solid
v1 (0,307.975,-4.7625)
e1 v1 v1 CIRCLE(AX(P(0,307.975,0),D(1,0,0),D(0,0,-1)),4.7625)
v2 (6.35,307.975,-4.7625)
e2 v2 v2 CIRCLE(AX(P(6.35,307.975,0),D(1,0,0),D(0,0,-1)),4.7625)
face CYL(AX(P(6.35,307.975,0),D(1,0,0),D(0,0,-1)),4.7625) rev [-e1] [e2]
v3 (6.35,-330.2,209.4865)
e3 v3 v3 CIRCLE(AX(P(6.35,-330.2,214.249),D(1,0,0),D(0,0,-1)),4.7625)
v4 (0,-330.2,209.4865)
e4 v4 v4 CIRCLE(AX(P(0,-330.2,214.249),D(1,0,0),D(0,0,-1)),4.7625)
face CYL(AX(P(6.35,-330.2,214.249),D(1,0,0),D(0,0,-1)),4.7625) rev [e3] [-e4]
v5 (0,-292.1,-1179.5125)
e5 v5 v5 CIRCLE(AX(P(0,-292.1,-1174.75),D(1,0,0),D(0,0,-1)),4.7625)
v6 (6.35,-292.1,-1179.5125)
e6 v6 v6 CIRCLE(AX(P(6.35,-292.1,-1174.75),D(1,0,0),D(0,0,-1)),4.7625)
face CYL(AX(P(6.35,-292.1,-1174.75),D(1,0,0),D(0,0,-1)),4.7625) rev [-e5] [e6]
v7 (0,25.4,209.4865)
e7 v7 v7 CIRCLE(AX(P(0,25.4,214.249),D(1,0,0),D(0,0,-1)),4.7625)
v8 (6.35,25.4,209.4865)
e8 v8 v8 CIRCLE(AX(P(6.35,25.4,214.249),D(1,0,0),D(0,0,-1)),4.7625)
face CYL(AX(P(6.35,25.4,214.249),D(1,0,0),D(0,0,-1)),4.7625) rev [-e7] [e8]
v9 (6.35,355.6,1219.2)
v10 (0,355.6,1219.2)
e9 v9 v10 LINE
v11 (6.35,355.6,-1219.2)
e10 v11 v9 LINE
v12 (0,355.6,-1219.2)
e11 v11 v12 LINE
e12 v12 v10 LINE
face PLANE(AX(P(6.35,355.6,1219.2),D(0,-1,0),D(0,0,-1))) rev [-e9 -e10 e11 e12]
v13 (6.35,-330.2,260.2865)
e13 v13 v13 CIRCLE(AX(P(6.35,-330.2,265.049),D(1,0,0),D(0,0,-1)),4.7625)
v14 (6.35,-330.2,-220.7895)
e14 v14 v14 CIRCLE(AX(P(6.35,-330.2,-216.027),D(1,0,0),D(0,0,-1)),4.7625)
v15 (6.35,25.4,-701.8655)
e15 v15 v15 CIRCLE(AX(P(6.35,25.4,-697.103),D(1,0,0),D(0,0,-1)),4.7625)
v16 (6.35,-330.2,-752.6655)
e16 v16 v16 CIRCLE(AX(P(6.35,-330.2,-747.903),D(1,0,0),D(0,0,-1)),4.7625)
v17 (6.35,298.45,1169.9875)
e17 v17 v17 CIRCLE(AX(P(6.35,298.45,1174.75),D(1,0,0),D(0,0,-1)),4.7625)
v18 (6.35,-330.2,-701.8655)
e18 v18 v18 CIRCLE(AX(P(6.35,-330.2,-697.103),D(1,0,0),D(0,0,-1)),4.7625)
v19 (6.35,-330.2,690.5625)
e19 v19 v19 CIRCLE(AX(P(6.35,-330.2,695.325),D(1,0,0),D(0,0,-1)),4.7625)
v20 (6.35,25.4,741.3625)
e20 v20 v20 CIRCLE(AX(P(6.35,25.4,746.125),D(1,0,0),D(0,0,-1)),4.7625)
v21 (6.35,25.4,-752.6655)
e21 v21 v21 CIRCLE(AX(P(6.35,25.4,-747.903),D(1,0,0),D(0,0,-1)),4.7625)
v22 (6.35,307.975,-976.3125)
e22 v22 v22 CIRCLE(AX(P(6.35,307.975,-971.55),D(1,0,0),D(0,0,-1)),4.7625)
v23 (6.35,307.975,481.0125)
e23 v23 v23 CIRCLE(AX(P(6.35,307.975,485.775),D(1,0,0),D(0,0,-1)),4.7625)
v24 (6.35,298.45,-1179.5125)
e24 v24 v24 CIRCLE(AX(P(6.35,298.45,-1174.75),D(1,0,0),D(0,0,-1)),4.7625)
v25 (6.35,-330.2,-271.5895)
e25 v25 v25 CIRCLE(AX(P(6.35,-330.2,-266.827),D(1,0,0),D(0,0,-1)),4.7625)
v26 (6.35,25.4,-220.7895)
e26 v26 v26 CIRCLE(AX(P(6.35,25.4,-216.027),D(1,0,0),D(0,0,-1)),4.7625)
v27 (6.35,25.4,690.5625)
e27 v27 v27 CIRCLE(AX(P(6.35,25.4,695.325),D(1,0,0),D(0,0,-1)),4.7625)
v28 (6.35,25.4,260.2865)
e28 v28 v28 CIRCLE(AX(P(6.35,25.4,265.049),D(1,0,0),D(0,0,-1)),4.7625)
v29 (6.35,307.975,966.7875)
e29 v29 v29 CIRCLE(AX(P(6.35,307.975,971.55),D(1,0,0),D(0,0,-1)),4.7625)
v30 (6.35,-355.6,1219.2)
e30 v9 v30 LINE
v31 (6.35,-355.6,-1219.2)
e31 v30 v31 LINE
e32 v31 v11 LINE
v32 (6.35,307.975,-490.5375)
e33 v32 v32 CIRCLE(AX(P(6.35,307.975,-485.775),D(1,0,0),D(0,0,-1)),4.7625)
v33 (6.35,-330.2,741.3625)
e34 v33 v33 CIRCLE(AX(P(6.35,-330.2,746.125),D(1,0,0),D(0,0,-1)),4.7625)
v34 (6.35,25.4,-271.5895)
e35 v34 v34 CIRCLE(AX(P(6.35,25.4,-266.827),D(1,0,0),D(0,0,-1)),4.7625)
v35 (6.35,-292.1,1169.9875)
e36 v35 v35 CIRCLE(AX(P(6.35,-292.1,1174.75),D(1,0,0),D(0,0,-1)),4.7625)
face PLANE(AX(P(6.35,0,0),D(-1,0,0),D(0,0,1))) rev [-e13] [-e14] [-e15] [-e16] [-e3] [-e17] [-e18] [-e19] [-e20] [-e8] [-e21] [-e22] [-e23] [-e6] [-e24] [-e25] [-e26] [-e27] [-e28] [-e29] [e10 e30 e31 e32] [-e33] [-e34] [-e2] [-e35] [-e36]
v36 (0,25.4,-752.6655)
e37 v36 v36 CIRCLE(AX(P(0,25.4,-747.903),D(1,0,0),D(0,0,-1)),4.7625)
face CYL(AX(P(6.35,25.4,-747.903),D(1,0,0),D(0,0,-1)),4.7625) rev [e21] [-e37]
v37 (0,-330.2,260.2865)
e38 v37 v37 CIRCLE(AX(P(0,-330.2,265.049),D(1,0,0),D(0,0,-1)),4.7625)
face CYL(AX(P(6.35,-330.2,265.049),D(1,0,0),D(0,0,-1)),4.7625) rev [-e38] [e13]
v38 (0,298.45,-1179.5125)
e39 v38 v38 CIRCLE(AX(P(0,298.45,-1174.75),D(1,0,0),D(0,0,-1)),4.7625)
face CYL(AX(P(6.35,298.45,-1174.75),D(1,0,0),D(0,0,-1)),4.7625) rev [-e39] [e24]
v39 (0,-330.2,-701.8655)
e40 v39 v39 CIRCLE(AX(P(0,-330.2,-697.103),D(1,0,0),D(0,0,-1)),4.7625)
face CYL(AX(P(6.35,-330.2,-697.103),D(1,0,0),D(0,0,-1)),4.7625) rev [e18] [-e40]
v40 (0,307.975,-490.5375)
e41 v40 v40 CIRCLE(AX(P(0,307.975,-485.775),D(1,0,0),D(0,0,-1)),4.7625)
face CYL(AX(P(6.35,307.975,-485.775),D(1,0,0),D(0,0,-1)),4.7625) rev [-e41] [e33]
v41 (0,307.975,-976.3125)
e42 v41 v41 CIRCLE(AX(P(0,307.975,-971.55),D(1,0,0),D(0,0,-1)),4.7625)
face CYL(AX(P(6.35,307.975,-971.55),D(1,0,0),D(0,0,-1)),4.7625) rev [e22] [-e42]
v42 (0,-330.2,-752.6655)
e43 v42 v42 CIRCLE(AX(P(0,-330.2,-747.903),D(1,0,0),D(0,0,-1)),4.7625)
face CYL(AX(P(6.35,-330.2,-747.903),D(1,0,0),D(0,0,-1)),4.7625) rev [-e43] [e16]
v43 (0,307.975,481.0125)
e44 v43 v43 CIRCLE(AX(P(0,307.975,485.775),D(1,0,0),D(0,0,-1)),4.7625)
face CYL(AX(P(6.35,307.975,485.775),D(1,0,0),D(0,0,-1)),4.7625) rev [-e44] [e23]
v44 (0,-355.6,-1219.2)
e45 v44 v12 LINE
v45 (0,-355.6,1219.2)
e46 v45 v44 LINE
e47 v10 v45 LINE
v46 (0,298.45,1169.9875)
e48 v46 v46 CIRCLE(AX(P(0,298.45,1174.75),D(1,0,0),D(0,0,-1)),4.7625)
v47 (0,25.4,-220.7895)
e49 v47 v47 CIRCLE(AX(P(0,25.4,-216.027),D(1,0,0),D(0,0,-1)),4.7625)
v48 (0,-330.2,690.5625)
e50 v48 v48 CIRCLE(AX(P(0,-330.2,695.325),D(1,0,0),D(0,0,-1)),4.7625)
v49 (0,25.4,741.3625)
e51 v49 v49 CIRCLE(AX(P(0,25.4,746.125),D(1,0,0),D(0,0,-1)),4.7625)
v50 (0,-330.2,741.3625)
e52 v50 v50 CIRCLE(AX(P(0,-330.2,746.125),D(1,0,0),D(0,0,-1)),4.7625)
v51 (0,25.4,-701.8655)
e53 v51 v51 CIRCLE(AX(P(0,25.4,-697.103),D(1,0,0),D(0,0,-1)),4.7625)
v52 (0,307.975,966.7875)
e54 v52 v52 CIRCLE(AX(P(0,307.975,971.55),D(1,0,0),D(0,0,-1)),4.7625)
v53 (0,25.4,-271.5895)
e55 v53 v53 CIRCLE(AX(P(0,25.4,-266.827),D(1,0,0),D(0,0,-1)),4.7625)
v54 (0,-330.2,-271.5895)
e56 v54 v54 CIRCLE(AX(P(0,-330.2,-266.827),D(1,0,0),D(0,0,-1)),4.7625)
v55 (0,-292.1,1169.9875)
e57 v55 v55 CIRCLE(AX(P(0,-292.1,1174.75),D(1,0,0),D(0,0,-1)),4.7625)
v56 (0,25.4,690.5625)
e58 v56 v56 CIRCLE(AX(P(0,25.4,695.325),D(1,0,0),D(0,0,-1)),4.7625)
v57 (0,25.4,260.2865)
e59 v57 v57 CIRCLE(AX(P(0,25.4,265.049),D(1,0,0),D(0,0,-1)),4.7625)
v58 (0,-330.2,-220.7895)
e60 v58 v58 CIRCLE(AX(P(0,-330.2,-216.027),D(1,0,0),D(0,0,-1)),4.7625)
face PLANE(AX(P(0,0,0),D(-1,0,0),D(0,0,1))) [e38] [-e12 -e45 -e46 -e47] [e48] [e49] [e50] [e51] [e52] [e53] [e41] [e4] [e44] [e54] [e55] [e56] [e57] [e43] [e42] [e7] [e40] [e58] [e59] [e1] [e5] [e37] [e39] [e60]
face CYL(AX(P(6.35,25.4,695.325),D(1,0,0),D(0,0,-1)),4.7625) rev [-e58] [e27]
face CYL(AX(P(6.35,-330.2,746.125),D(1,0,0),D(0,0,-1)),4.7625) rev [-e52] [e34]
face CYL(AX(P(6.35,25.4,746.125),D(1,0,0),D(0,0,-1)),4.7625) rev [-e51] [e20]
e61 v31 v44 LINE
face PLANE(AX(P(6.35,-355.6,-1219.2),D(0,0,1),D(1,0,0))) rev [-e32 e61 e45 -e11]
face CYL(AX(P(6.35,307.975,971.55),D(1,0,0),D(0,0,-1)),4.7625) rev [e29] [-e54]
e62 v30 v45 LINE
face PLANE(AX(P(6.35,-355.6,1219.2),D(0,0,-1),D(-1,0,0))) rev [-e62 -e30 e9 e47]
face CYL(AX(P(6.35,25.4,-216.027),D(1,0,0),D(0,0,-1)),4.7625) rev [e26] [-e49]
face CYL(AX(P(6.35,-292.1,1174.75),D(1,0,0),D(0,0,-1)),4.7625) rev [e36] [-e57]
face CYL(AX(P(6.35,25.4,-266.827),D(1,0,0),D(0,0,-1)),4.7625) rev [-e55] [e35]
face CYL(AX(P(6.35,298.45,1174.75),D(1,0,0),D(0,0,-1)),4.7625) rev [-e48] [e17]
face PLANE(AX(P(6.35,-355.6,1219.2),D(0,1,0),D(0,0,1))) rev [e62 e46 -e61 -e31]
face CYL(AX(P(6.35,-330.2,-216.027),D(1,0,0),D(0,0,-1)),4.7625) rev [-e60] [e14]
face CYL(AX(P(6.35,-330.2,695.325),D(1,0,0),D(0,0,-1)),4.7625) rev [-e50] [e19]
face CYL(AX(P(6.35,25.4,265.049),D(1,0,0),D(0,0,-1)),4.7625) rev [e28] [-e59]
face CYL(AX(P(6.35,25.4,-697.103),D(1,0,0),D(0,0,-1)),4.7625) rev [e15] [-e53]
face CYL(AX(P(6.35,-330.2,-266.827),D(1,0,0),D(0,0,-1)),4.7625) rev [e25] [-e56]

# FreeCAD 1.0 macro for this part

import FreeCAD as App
import Part
import Sketcher
Q = App.Units.Quantity


def add_polygon(sketch, points):
    """Adds a closed chain of lines whose ends are joined by coincident constraints."""
    first, n = sketch.GeometryCount, len(points)
    for a, b in zip(points, points[1:] + points[:1]):
        sketch.addGeometry(Part.LineSegment(App.Vector(*a, 0), App.Vector(*b, 0)), False)
    for i in range(n):
        sketch.addConstraint(Sketcher.Constraint("Coincident", first + i, 2, first + (i + 1) % n, 1))

doc = App.newDocument("Part")
body = doc.addObject("PartDesign::Body", "Body")

# Sketch on YZ plane
sketch1 = body.newObject("Sketcher::SketchObject", "Sketch")
sketch1.AttachmentSupport = (doc.getObject("YZ_Plane"), [""])
sketch1.MapMode = "FlatFace"
add_polygon(sketch1, [(355.6, 1219.2), (-355.6, 1219.2), (-355.6, -1219.2), (355.6, -1219.2)])  # lines 0-3
sketch1.addConstraint([
    Sketcher.Constraint("Horizontal", 0),
    Sketcher.Constraint("Vertical", 1),
    Sketcher.Constraint("Horizontal", 2),
    Sketcher.Constraint("Vertical", 3),
    Sketcher.Constraint("Symmetric", 0, 2, 2, 2, -1, 1),
    Sketcher.Constraint("DistanceX", 0, 2, 0, 1, Q("28 in")),
    Sketcher.Constraint("DistanceY", 1, 2, 1, 1, Q("96 in")),
])
pad1 = body.newObject("PartDesign::Pad", "Pad")
pad1.Profile = sketch1
pad1.Length = Q("0.25 in")

# Sketch on YZ plane
sketch2 = body.newObject("Sketcher::SketchObject", "Sketch001")
sketch2.AttachmentSupport = (doc.getObject("YZ_Plane"), [""])
sketch2.MapMode = "FlatFace"
sketch2.AttachmentOffset = App.Placement(App.Vector(0, 0, 0.25 * 25.4), App.Rotation())
sketch2.addGeometry([
    Part.Circle(App.Vector(25.4, 746.125, 0), App.Vector(0, 0, 1), 4.7625),
    Part.Circle(App.Vector(25.4, 695.325, 0), App.Vector(0, 0, 1), 4.7625),
    Part.Circle(App.Vector(-330.2, 746.125, 0), App.Vector(0, 0, 1), 4.7625),
    Part.Circle(App.Vector(-330.2, 695.325, 0), App.Vector(0, 0, 1), 4.7625),
], False)
sketch2.addConstraint([
    Sketcher.Constraint("Equal", 0, 1),
    Sketcher.Constraint("Equal", 1, 2),
    Sketcher.Constraint("Equal", 2, 3),
    Sketcher.Constraint("Horizontal", 0, 3, 2, 3),
    Sketcher.Constraint("Horizontal", 1, 3, 3, 3),
    Sketcher.Constraint("Vertical", 0, 3, 1, 3),
    Sketcher.Constraint("Vertical", 2, 3, 3, 3),
    Sketcher.Constraint("Diameter", 0, Q("0.375 in")),
    Sketcher.Constraint("DistanceX", -1, 1, 0, 3, Q("1 in")),
    Sketcher.Constraint("DistanceX", 2, 3, -1, 1, Q("13 in")),
    Sketcher.Constraint("DistanceY", 1, 3, 0, 3, Q("2 in")),
    Sketcher.Constraint("DistanceY", -1, 1, 0, 3, Q("29.375 in")),
])
doc.recompute()
hole = body.newObject("PartDesign::Hole", "Hole")
hole.Profile = sketch2
hole.ThreadType = "None"
hole.Diameter = Q("0.375 in")
hole.DepthType = "ThroughAll"
doc.recompute()

linearpattern = body.newObject("PartDesign::LinearPattern", "LinearPattern")
linearpattern.Originals = [hole]
linearpattern.Direction = (doc.getObject("Z_Axis"), [""])
linearpattern.Mode = "offset"
linearpattern.Offset = Q("18.94 in")
linearpattern.Occurrences = 4
linearpattern.Reversed = True
body.Tip = linearpattern

# Sketch on YZ plane
sketch3 = body.newObject("Sketcher::SketchObject", "Sketch002")
sketch3.AttachmentSupport = (doc.getObject("YZ_Plane"), [""])
sketch3.MapMode = "FlatFace"
sketch3.AttachmentOffset = App.Placement(App.Vector(0, 0, 0.25 * 25.4), App.Rotation())
sketch3.addGeometry(Part.Circle(App.Vector(307.975, 971.55, 0), App.Vector(0, 0, 1), 4.7625), False)
sketch3.addConstraint([
    Sketcher.Constraint("Diameter", 0, Q("0.375 in")),
    Sketcher.Constraint("DistanceY", -1, 1, 0, 3, Q("38.25 in")),
    Sketcher.Constraint("DistanceX", -1, 1, 0, 3, Q("12.125 in")),
])
doc.recompute()
hole2 = body.newObject("PartDesign::Hole", "Hole001")
hole2.Profile = sketch3
hole2.ThreadType = "None"
hole2.Diameter = Q("0.375 in")
hole2.DepthType = "ThroughAll"
doc.recompute()

linearpattern2 = body.newObject("PartDesign::LinearPattern", "LinearPattern001")
linearpattern2.Originals = [hole2]
linearpattern2.Direction = (doc.getObject("Z_Axis"), [""])
linearpattern2.Mode = "offset"
linearpattern2.Offset = Q("19.125 in")
linearpattern2.Occurrences = 5
linearpattern2.Reversed = True
body.Tip = linearpattern2

# Sketch on YZ plane
sketch4 = body.newObject("Sketcher::SketchObject", "Sketch003")
sketch4.AttachmentSupport = (doc.getObject("YZ_Plane"), [""])
sketch4.MapMode = "FlatFace"
sketch4.AttachmentOffset = App.Placement(App.Vector(0, 0, 0.25 * 25.4), App.Rotation())
sketch4.addGeometry([
    Part.Circle(App.Vector(-292.1, 1174.75, 0), App.Vector(0, 0, 1), 4.7625),
    Part.Circle(App.Vector(298.45, 1174.75, 0), App.Vector(0, 0, 1), 4.7625),
], False)
sketch4.addConstraint([
    Sketcher.Constraint("Equal", 0, 1),
    Sketcher.Constraint("Horizontal", 0, 3, 1, 3),
    Sketcher.Constraint("Diameter", 0, Q("0.375 in")),
    Sketcher.Constraint("DistanceX", 0, 3, -1, 1, Q("11.5 in")),
    Sketcher.Constraint("DistanceY", -1, 1, 0, 3, Q("46.25 in")),
    Sketcher.Constraint("DistanceX", -1, 1, 1, 3, Q("11.75 in")),
])
doc.recompute()
hole3 = body.newObject("PartDesign::Hole", "Hole002")
hole3.Profile = sketch4
hole3.ThreadType = "None"
hole3.Diameter = Q("0.375 in")
hole3.DepthType = "ThroughAll"
doc.recompute()

mirrored = body.newObject("PartDesign::Mirrored", "Mirrored")
mirrored.Originals = [hole3]
mirrored.MirrorPlane = (doc.getObject("XY_Plane"), [""])
body.Tip = mirrored

doc.recompute()
